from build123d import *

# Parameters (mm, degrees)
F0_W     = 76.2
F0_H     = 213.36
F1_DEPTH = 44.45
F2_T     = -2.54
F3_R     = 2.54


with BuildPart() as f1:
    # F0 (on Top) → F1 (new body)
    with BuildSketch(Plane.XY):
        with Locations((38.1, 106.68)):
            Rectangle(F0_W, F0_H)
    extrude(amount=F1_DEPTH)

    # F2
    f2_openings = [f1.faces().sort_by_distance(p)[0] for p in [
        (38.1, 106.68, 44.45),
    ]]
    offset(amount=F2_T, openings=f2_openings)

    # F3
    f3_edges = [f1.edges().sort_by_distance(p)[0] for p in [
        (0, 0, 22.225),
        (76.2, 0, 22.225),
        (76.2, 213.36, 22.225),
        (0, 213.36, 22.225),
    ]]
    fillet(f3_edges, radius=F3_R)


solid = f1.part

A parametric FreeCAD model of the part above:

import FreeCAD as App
import Part
import Sketcher
Q = App.Units.Quantity


def edges_at(feature, points):
    """Names of the edges that pass closest to the given points."""
    edges = feature.Shape.Edges
    near = lambda p: min(range(len(edges)), key=lambda i: edges[i].distToShape(Part.Vertex(*p))[0])
    return sorted({f"Edge{near(p) + 1}" for p in points})


def faces_at(feature, points):
    """Names of the faces that lie closest to the given points."""
    faces = feature.Shape.Faces
    near = lambda p: min(range(len(faces)), key=lambda i: faces[i].distToShape(Part.Vertex(*p))[0])
    return sorted({f"Face{near(p) + 1}" for p in points})


def add_polygon(sketch, points):
    """Adds a closed chain of lines whose ends are joined by coincident constraints."""
    first, n = sketch.GeometryCount, len(points)
    for a, b in zip(points, points[1:] + points[:1]):
        sketch.addGeometry(Part.LineSegment(App.Vector(*a, 0), App.Vector(*b, 0)), False)
    for i in range(n):
        sketch.addConstraint(Sketcher.Constraint("Coincident", first + i, 2, first + (i + 1) % n, 1))

doc = App.newDocument("Part")
params = doc.addObject("Spreadsheet::Sheet", "Params")
for row, (alias, value) in enumerate([
    ("sketch1_width", "3 in"),
    ("sketch1_height", "8.4 in"),
    ("pad1_length", "1.75 in"),
    ("thickness_wall", "0.1 in"),
    ("fillet_radius", "0.1 in"),
], start=1):
    params.set(f"A{row}", alias)
    params.set(f"B{row}", "=" + value)
    params.setAlias(f"B{row}", alias)

body = doc.addObject("PartDesign::Body", "Body")

# Sketch on XY plane
sketch1 = body.newObject("Sketcher::SketchObject", "Sketch")
sketch1.AttachmentSupport = (doc.getObject("XY_Plane"), [""])
sketch1.MapMode = "FlatFace"
add_polygon(sketch1, [(0, 213.36), (0, 0), (76.2, 0), (76.2, 213.36)])  # lines 0-3
sketch1.addConstraint([
    Sketcher.Constraint("Vertical", 0),
    Sketcher.Constraint("Horizontal", 1),
    Sketcher.Constraint("Vertical", 2),
    Sketcher.Constraint("Horizontal", 3),
    Sketcher.Constraint("Coincident", 0, 2, -1, 1),
    Sketcher.Constraint("DistanceX", 1, 1, 1, 2, Q("3 in")),
    Sketcher.Constraint("DistanceY", 0, 2, 0, 1, Q("8.4 in")),
])
sketch1.setExpression("Constraints[9]", "Params.sketch1_width")
sketch1.setExpression("Constraints[10]", "Params.sketch1_height")
pad1 = body.newObject("PartDesign::Pad", "Pad")
pad1.Profile = sketch1
pad1.setExpression("Length", "Params.pad1_length")
doc.recompute()

thickness = body.newObject("PartDesign::Thickness", "Thickness")
thickness.Base = (pad1, faces_at(pad1, [(38.1, 106.68, 44.45)]))
thickness.setExpression("Value", "Params.thickness_wall")
thickness.Reversed = True
thickness.Join = "Arc"
doc.recompute()

fillet = body.newObject("PartDesign::Fillet", "Fillet")
fillet.Base = (thickness, edges_at(thickness, [
    (0, 0, 22.225),
    (76.2, 0, 22.225),
    (76.2, 213.36, 22.225),
    (0, 213.36, 22.225),
]))
fillet.setExpression("Radius", "Params.fillet_radius")

doc.recompute()
